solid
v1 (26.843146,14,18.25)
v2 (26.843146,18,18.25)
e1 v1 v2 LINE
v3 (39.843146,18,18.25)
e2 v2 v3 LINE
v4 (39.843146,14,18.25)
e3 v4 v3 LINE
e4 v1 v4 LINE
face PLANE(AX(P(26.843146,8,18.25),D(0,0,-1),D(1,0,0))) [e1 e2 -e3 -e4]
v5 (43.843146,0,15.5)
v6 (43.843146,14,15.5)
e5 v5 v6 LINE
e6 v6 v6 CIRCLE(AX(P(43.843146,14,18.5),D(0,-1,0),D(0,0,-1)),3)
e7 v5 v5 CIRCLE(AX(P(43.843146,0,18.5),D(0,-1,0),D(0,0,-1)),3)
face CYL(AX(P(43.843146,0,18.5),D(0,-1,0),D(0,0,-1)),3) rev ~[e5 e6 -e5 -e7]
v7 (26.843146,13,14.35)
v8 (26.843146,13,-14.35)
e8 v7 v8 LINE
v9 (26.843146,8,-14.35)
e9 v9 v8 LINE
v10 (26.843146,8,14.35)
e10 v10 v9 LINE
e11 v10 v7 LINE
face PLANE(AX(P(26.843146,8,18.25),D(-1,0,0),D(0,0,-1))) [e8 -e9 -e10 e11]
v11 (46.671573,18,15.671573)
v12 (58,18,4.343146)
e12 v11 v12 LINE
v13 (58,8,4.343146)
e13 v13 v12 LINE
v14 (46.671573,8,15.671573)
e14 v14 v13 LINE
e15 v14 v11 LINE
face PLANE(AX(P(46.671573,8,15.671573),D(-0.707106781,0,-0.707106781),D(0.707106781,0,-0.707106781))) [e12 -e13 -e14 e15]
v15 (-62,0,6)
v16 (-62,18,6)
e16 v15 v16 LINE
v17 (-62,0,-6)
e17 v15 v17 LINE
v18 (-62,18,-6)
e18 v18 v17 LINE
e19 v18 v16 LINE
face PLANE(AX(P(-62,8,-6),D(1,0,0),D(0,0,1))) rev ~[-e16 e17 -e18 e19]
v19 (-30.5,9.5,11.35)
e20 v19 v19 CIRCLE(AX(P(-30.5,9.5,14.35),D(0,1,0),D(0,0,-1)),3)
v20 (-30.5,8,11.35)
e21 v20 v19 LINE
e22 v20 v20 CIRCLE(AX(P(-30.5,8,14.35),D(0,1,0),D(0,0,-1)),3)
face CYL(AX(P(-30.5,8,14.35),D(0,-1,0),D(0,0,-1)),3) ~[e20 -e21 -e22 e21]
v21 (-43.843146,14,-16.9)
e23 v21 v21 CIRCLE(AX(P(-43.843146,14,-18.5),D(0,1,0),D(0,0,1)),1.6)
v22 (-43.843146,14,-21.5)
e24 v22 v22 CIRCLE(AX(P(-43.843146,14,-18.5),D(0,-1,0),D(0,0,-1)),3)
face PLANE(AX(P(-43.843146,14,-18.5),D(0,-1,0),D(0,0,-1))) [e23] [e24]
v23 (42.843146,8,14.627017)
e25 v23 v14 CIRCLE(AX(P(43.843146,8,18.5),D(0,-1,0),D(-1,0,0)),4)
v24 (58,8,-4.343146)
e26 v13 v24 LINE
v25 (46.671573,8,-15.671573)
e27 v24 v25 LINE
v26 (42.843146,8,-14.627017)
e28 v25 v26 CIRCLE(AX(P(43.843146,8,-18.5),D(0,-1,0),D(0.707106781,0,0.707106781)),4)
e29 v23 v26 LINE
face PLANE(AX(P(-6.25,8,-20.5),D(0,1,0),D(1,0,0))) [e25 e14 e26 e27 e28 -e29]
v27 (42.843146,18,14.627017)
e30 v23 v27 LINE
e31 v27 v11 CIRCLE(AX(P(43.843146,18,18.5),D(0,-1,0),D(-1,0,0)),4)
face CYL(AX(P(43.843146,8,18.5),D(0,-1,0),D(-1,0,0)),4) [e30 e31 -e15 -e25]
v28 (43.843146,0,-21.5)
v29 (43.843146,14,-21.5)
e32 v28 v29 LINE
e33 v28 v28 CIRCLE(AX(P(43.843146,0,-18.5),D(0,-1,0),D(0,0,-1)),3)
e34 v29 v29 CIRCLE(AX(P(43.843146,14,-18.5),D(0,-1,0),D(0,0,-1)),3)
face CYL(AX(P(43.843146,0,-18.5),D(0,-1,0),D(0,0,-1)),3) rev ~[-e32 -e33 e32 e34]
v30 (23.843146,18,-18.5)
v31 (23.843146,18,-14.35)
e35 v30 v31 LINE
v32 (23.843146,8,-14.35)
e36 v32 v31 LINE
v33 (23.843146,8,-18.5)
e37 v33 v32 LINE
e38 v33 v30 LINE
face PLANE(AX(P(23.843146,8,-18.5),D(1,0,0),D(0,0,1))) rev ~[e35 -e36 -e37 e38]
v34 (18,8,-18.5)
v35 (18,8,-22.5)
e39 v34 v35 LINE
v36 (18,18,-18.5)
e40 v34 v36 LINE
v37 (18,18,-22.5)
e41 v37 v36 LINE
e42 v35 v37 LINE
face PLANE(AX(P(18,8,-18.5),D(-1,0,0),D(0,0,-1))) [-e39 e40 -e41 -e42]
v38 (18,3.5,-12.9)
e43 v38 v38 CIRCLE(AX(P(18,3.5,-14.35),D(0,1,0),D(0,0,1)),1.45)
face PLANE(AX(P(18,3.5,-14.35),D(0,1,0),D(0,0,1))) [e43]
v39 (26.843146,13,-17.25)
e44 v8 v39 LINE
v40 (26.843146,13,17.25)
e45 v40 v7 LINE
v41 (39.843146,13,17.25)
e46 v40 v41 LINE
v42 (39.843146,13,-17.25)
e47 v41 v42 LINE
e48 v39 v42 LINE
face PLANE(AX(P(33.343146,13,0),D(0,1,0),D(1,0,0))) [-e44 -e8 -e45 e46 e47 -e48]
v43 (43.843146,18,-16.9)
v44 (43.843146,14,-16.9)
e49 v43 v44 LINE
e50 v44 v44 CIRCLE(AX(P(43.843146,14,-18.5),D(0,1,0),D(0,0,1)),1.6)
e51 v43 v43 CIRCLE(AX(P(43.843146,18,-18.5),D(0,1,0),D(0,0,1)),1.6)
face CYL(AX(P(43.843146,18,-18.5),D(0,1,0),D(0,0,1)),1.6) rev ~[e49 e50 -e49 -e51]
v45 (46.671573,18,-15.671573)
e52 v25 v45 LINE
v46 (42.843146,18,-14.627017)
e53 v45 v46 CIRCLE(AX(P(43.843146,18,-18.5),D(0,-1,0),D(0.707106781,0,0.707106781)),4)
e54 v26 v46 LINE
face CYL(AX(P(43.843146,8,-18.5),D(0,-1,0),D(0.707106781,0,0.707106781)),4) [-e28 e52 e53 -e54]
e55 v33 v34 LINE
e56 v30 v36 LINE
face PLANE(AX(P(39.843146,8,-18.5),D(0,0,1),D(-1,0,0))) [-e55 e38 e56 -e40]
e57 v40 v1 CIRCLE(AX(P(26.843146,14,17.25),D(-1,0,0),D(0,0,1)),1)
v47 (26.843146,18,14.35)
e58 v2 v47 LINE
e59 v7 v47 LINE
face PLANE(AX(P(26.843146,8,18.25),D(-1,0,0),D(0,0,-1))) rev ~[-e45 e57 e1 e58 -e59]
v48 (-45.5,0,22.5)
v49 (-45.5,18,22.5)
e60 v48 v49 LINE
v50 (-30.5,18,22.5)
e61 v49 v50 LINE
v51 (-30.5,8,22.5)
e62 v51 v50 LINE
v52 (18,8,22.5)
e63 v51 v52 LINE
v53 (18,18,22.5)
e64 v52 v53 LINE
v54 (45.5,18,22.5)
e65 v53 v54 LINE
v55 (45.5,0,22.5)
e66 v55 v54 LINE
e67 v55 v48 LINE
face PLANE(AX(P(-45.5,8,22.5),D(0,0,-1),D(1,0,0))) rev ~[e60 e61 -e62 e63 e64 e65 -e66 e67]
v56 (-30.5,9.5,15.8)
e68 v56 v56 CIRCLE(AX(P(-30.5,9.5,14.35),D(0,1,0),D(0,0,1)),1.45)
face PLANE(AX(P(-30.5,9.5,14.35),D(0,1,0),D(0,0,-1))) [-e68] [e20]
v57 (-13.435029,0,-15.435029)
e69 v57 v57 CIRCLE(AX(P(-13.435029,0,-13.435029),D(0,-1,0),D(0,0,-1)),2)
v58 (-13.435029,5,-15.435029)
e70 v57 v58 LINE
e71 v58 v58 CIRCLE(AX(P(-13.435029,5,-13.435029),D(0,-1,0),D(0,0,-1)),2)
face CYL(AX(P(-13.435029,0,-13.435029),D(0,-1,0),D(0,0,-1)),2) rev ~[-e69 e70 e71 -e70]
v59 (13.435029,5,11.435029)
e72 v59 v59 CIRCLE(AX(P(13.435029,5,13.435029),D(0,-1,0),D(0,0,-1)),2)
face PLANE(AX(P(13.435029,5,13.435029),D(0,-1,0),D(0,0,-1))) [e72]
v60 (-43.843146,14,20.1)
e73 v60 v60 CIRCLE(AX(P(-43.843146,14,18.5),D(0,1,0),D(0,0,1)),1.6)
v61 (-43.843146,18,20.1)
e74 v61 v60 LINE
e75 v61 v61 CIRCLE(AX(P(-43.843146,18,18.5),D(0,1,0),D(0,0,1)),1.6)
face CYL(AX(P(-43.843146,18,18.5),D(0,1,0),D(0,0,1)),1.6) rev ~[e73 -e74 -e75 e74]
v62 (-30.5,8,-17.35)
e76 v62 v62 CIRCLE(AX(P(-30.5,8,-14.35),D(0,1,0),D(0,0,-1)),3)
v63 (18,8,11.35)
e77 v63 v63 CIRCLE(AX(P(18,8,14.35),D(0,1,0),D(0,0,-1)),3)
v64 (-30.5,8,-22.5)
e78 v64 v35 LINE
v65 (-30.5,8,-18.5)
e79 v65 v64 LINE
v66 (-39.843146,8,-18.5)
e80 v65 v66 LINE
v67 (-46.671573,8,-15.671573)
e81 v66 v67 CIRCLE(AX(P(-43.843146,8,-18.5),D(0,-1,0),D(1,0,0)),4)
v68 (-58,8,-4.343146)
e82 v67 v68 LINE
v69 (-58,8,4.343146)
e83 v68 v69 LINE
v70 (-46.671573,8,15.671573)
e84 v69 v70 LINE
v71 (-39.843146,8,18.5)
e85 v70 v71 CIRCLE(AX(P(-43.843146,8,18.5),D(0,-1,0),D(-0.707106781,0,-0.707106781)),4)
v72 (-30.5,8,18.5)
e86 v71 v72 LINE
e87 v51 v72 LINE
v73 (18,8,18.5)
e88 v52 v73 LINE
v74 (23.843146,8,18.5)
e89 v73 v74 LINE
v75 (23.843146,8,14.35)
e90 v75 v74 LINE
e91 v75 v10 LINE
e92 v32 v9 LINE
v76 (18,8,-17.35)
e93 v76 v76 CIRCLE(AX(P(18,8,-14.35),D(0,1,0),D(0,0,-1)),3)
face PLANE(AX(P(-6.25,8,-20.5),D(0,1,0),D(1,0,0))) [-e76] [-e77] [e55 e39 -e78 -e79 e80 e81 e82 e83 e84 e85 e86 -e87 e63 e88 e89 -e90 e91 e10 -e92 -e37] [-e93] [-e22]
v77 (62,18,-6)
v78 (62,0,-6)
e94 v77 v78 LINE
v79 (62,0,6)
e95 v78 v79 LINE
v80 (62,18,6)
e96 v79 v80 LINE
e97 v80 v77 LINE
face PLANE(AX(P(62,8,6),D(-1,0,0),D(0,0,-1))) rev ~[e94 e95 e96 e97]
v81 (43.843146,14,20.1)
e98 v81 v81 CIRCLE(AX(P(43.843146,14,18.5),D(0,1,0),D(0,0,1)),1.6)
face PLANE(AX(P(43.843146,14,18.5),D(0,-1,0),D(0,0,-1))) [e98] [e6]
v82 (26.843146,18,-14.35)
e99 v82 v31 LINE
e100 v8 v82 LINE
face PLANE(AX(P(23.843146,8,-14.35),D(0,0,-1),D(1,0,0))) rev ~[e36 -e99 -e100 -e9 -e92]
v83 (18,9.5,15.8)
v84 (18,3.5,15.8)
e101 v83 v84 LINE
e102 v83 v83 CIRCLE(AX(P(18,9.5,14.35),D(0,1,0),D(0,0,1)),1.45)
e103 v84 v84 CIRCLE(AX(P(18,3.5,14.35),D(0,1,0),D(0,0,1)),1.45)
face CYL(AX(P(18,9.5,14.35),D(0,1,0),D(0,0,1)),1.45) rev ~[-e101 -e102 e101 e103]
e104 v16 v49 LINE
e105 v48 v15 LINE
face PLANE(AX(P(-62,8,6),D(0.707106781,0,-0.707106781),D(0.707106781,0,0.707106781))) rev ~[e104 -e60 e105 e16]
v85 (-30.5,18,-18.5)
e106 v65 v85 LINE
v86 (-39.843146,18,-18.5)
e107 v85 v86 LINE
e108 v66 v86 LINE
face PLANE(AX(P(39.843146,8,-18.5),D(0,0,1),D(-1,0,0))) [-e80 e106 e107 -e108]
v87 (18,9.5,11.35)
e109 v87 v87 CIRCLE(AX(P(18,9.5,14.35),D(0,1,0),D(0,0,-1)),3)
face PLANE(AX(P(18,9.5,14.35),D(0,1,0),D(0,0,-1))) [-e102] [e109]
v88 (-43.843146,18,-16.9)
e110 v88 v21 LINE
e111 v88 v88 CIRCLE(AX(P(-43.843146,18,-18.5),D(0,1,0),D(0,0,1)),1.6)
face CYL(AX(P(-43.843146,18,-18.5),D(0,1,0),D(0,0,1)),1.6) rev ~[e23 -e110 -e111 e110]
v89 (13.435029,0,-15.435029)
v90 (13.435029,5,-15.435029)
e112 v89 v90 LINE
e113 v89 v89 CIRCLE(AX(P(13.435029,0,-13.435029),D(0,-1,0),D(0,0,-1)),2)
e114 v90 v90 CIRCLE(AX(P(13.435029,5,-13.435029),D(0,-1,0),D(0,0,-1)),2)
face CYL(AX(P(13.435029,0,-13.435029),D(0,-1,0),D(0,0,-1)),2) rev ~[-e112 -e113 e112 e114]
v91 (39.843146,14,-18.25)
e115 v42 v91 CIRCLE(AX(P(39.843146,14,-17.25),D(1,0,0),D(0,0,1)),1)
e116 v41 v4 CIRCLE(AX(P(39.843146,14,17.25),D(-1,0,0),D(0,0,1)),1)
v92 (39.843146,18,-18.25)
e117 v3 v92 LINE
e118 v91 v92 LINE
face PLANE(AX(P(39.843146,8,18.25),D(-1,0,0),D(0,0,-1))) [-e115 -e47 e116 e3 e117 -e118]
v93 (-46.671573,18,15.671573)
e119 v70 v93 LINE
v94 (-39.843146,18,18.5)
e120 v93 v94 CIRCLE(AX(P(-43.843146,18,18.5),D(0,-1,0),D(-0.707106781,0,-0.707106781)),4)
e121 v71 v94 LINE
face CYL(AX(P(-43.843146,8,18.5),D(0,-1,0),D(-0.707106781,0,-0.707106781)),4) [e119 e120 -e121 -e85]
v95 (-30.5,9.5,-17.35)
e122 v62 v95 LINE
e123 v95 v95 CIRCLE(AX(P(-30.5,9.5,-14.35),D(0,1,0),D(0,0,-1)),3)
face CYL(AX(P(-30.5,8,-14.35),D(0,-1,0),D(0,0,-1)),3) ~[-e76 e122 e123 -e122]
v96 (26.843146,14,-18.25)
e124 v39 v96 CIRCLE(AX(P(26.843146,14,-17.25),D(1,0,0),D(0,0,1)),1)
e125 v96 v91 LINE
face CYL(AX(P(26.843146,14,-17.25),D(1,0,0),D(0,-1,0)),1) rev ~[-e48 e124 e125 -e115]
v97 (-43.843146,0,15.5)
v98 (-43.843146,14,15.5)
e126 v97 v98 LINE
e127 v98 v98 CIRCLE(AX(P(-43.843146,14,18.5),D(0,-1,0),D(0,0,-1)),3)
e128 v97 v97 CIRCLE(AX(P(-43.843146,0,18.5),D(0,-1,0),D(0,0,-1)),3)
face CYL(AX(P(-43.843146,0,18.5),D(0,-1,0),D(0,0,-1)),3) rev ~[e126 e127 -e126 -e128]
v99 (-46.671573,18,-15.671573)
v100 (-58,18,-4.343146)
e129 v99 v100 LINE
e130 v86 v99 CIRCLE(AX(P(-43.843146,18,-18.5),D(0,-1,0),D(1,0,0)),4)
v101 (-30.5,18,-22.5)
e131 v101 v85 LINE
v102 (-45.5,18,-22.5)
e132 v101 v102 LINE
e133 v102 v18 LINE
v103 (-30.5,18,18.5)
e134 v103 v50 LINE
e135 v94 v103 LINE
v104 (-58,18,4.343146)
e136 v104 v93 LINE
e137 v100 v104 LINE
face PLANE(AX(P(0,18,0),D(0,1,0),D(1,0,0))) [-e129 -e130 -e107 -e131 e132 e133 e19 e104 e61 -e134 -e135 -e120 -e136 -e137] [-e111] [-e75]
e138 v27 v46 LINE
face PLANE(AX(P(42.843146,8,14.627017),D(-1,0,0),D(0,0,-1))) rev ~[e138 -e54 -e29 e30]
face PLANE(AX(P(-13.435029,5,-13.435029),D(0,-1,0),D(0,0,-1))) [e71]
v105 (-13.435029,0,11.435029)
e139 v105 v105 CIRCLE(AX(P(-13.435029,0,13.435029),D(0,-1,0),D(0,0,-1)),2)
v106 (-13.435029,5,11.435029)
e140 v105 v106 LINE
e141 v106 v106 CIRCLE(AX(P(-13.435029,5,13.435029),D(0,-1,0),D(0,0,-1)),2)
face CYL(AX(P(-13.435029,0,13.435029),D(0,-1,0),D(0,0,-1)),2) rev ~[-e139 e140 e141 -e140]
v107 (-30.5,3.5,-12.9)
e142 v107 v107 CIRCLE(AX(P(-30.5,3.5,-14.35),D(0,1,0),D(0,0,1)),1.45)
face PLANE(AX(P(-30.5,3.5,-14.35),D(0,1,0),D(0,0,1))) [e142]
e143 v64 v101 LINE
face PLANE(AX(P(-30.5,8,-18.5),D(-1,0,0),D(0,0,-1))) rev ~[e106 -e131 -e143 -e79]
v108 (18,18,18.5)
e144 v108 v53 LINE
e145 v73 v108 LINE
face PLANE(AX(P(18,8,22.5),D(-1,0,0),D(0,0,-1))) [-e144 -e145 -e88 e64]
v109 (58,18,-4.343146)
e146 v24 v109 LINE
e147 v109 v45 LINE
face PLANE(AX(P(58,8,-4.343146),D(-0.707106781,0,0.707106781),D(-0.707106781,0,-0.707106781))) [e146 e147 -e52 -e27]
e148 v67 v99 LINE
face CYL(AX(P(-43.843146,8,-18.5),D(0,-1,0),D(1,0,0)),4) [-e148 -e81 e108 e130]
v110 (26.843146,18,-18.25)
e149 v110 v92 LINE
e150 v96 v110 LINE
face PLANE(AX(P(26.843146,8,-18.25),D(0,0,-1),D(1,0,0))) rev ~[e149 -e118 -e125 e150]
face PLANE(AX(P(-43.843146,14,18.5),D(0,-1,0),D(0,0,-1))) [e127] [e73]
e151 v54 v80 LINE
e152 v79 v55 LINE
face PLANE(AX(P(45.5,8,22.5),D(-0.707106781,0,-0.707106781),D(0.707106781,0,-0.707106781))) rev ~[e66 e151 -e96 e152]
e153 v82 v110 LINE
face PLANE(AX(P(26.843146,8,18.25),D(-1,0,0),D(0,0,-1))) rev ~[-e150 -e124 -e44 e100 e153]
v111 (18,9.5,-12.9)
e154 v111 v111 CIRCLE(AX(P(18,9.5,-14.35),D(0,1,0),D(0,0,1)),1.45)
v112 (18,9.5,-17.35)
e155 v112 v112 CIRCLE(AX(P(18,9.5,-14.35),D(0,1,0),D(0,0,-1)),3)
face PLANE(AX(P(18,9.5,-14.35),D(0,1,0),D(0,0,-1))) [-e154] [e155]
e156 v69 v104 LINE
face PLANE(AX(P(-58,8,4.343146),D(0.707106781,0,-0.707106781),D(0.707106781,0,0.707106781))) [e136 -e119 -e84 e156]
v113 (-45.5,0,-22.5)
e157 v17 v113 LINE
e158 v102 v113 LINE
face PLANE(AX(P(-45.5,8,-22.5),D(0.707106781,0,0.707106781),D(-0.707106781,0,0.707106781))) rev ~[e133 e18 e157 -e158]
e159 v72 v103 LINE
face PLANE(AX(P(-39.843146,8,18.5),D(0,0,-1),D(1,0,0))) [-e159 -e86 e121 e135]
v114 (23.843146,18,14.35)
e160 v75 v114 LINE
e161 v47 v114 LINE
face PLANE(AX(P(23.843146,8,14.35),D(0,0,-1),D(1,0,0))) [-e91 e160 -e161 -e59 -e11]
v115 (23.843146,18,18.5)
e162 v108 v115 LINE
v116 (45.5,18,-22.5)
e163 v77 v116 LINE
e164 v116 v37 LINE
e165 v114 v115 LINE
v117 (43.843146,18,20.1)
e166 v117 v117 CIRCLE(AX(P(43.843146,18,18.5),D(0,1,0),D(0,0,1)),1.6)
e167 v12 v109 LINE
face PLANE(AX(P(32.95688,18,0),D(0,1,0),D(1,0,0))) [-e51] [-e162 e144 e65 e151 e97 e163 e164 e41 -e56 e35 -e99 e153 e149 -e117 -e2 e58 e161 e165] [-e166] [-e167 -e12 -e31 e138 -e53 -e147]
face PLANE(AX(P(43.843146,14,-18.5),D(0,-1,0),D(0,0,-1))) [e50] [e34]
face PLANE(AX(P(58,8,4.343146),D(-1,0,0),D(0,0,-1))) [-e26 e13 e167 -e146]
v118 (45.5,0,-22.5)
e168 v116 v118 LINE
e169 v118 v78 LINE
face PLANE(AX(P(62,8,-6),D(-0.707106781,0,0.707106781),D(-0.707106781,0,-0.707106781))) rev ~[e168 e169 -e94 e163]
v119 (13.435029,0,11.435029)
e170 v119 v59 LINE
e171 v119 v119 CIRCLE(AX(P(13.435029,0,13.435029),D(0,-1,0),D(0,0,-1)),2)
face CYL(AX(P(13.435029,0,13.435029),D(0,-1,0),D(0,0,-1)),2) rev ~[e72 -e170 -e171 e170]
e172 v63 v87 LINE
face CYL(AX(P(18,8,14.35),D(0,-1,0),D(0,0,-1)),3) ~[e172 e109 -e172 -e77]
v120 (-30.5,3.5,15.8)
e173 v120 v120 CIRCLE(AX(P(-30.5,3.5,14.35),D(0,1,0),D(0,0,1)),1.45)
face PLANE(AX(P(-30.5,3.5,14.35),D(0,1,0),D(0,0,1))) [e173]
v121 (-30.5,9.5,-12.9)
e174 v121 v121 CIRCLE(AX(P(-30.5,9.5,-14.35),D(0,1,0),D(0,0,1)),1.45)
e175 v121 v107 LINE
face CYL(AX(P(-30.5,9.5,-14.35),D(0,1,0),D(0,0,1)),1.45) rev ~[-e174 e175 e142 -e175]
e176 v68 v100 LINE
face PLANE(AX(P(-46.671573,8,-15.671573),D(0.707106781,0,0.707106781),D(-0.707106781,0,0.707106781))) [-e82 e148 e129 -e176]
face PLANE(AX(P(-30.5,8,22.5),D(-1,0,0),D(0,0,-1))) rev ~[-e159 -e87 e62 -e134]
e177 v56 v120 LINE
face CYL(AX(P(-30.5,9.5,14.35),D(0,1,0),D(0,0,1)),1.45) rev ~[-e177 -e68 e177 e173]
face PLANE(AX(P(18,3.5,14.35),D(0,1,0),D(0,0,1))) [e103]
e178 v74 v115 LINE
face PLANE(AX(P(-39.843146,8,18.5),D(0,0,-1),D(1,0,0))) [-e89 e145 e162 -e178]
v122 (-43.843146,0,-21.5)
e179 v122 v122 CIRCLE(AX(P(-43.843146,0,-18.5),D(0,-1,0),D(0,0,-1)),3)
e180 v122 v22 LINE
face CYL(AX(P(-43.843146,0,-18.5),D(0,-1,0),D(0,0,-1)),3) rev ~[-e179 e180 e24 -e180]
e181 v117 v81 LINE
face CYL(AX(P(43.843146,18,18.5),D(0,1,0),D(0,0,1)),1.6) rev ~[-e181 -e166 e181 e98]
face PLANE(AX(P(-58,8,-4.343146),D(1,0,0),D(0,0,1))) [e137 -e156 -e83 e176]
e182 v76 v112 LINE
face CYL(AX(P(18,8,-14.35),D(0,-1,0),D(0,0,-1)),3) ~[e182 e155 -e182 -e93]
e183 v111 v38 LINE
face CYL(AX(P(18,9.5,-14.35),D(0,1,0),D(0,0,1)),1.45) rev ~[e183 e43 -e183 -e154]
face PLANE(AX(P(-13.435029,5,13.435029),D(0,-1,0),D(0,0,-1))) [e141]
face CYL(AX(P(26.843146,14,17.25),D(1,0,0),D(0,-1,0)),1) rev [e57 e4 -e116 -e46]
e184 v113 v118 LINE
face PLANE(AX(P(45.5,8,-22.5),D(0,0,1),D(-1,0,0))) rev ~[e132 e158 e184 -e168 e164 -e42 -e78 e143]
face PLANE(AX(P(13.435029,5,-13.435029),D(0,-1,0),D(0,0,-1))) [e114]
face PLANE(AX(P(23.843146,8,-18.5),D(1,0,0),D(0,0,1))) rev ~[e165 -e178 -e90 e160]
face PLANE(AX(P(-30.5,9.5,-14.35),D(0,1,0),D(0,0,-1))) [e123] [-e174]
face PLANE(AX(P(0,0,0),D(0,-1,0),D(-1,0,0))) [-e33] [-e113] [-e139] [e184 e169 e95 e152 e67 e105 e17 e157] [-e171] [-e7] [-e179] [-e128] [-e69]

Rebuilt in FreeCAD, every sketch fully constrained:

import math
import FreeCAD as App
import Part
import Sketcher
from FreeCAD import Vector
Q = App.Units.Quantity


def edges_at(feature, points):
    """Names of the edges that pass closest to the given points."""
    edges = feature.Shape.Edges
    near = lambda p: min(range(len(edges)), key=lambda i: edges[i].distToShape(Part.Vertex(*p))[0])
    return sorted({f"Edge{near(p) + 1}" for p in points})

doc = App.newDocument("Part")
body = doc.addObject("PartDesign::Body", "Body")

# Sketch on XZ plane
sketch1 = body.newObject("Sketcher::SketchObject", "Sketch")
sketch1.AttachmentSupport = (doc.getObject("XZ_Plane"), [""])
sketch1.MapMode = "FlatFace"
sketch1.addGeometry([
    Part.LineSegment(Vector(-46, -22, 0), Vector(-62, -6, 0)),  # 0
    Part.LineSegment(Vector(-62, -6, 0), Vector(-62, 6, 0)),  # 1
    Part.LineSegment(Vector(-62, 6, 0), Vector(-46, 22, 0)),  # 2
    Part.LineSegment(Vector(-46, 22, 0), Vector(46, 22, 0)),  # 3
    Part.LineSegment(Vector(46, 22, 0), Vector(62, 6, 0)),  # 4
    Part.LineSegment(Vector(62, 6, 0), Vector(62, -6, 0)),  # 5
    Part.LineSegment(Vector(62, -6, 0), Vector(46, -22, 0)),  # 6
    Part.LineSegment(Vector(46, -22, 0), Vector(-46, -22, 0)),  # 7
], False)
sketch1.addConstraint([
    Sketcher.Constraint("Coincident", 0, 2, 1, 1),
    Sketcher.Constraint("Coincident", 1, 2, 2, 1),
    Sketcher.Constraint("Coincident", 2, 2, 3, 1),
    Sketcher.Constraint("Coincident", 3, 2, 4, 1),
    Sketcher.Constraint("Coincident", 4, 2, 5, 1),
    Sketcher.Constraint("Coincident", 5, 2, 6, 1),
    Sketcher.Constraint("Coincident", 6, 2, 7, 1),
    Sketcher.Constraint("Coincident", 7, 2, 0, 1),
    Sketcher.Constraint("Vertical", 1),
    Sketcher.Constraint("Horizontal", 3),
    Sketcher.Constraint("Vertical", 5),
    Sketcher.Constraint("Horizontal", 7),
    Sketcher.Constraint("Symmetric", 0, 2, 4, 2, -1, 1),
    Sketcher.Constraint("Symmetric", 2, 2, 6, 2, -1, 1),
    Sketcher.Constraint("Perpendicular", 0, 2),
    Sketcher.Constraint("Perpendicular", 2, 4),
    Sketcher.Constraint("Perpendicular", 4, 6),
    Sketcher.Constraint("Horizontal", 1, 2, 4, 2),
    Sketcher.Constraint("Vertical", 3, 2, 6, 2),
    Sketcher.Constraint("DistanceX", 3, 1, 3, 2, Q("91 mm")),
    Sketcher.Constraint("DistanceY", 1, 1, 1, 2, Q("12 mm")),
    Sketcher.Constraint("DistanceX", 0, 2, -1, 1, Q("62 mm")),
])
pad1 = body.newObject("PartDesign::Pad", "Pad")
pad1.Profile = sketch1
pad1.Length = 8
pad1.Reversed = True

# Sketch on XZ plane
sketch2 = body.newObject("Sketcher::SketchObject", "Sketch001")
sketch2.AttachmentSupport = (doc.getObject("XZ_Plane"), [""])
sketch2.MapMode = "FlatFace"
sketch2.AttachmentOffset = App.Placement(Vector(0, 0, -8), App.Rotation())
sketch2.addGeometry([
    Part.LineSegment(Vector(-62, -6, 0), Vector(-62, 6, 0)),  # 0
    Part.LineSegment(Vector(-62, 6, 0), Vector(-45.5, 22.5, 0)),  # 1
    Part.LineSegment(Vector(-45.5, 22.5, 0), Vector(45.5, 22.5, 0)),  # 2
    Part.LineSegment(Vector(45.5, 22.5, 0), Vector(62, 6, 0)),  # 3
    Part.LineSegment(Vector(62, 6, 0), Vector(62, -6, 0)),  # 4
    Part.LineSegment(Vector(62, -6, 0), Vector(45.5, -22.5, 0)),  # 5
    Part.LineSegment(Vector(45.5, -22.5, 0), Vector(-45.5, -22.5, 0)),  # 6
    Part.LineSegment(Vector(-45.5, -22.5, 0), Vector(-62, -6, 0)),  # 7
    Part.LineSegment(Vector(-58, 4.3, 0), Vector(-58, -4.3, 0)),  # 8
    Part.LineSegment(Vector(-58, -4.3, 0), Vector(-46.7, -15.7, 0)),  # 9
    Part.ArcOfCircle(Part.Circle(Vector(-43.8, -18.5, 0), Vector(0, 0, 1), 4), math.radians(0), math.radians(135)),  # 10
    Part.LineSegment(Vector(-39.8, -18.5, 0), Vector(39.8, -18.5, 0)),  # 11
    Part.ArcOfCircle(Part.Circle(Vector(43.8, -18.5, 0), Vector(0, 0, 1), 4), math.radians(45), math.radians(180)),  # 12
    Part.LineSegment(Vector(46.7, -15.7, 0), Vector(58, -4.3, 0)),  # 13
    Part.LineSegment(Vector(58, -4.3, 0), Vector(58, 4.3, 0)),  # 14
    Part.LineSegment(Vector(58, 4.3, 0), Vector(46.7, 15.7, 0)),  # 15
    Part.ArcOfCircle(Part.Circle(Vector(43.8, 18.5, 0), Vector(0, 0, 1), 4), math.radians(180), math.radians(315)),  # 16
    Part.LineSegment(Vector(39.8, 18.5, 0), Vector(-39.8, 18.5, 0)),  # 17
    Part.ArcOfCircle(Part.Circle(Vector(-43.8, 18.5, 0), Vector(0, 0, 1), 4), math.radians(-135), math.radians(0)),  # 18
    Part.LineSegment(Vector(-46.7, 15.7, 0), Vector(-58, 4.3, 0)),  # 19
], False)
sketch2.addConstraint([
    Sketcher.Constraint("Coincident", 0, 2, 1, 1),
    Sketcher.Constraint("Coincident", 1, 2, 2, 1),
    Sketcher.Constraint("Coincident", 2, 2, 3, 1),
    Sketcher.Constraint("Coincident", 3, 2, 4, 1),
    Sketcher.Constraint("Coincident", 4, 2, 5, 1),
    Sketcher.Constraint("Coincident", 5, 2, 6, 1),
    Sketcher.Constraint("Coincident", 6, 2, 7, 1),
    Sketcher.Constraint("Coincident", 7, 2, 0, 1),
    Sketcher.Constraint("Coincident", 8, 2, 9, 1),
    Sketcher.Constraint("Coincident", 9, 2, 10, 2),
    Sketcher.Constraint("Coincident", 10, 1, 11, 1),
    Sketcher.Constraint("Coincident", 11, 2, 12, 2),
    Sketcher.Constraint("Coincident", 12, 1, 13, 1),
    Sketcher.Constraint("Coincident", 13, 2, 14, 1),
    Sketcher.Constraint("Coincident", 14, 2, 15, 1),
    Sketcher.Constraint("Coincident", 15, 2, 16, 2),
    Sketcher.Constraint("Coincident", 16, 1, 17, 1),
    Sketcher.Constraint("Coincident", 17, 2, 18, 2),
    Sketcher.Constraint("Coincident", 18, 1, 19, 1),
    Sketcher.Constraint("Coincident", 19, 2, 8, 1),
    Sketcher.Constraint("Vertical", 0),
    Sketcher.Constraint("Horizontal", 2),
    Sketcher.Constraint("Vertical", 4),
    Sketcher.Constraint("Horizontal", 6),
    Sketcher.Constraint("Vertical", 8),
    Sketcher.Constraint("Horizontal", 11),
    Sketcher.Constraint("Vertical", 14),
    Sketcher.Constraint("Horizontal", 17),
    Sketcher.Constraint("Equal", 10, 12),
    Sketcher.Constraint("Equal", 12, 16),
    Sketcher.Constraint("Equal", 16, 18),
    Sketcher.Constraint("Symmetric", 10, 3, 16, 3, -1, 1),
    Sketcher.Constraint("Symmetric", 12, 3, 18, 3, -1, 1),
    Sketcher.Constraint("Symmetric", 0, 2, 4, 2, -1, 1),
    Sketcher.Constraint("Symmetric", 1, 2, 5, 2, -1, 1),
    Sketcher.Constraint("Symmetric", 8, 2, 14, 2, -1, 1),
    Sketcher.Constraint("Symmetric", 10, 3, 12, 3, -2),
    Sketcher.Constraint("Perpendicular", 1, 3),
    Sketcher.Constraint("Perpendicular", 5, 7),
    Sketcher.Constraint("Parallel", 7, 9),
    Sketcher.Constraint("Perpendicular", 9, 13),
    Sketcher.Constraint("Perpendicular", 13, 15),
    Sketcher.Constraint("Perpendicular", 15, 19),
    Sketcher.Constraint("Horizontal", 0, 2, 3, 2),
    Sketcher.Constraint("Horizontal", 4, 2, 7, 2),
    Sketcher.Constraint("Horizontal", 12, 3, 10, 1),
    Sketcher.Constraint("Horizontal", 9, 2, 12, 1),
    Sketcher.Constraint("Horizontal", 8, 2, 13, 2),
    Sketcher.Constraint("Horizontal", 18, 3, 16, 1),
    Sketcher.Constraint("Horizontal", 15, 2, 18, 1),
    Sketcher.Constraint("Radius", 10, Q("4 mm")),
    Sketcher.Constraint("DistanceX", 2, 1, 2, 2, Q("91 mm")),
    Sketcher.Constraint("DistanceY", 0, 1, 0, 2, Q("12 mm")),
    Sketcher.Constraint("DistanceX", 0, 2, -1, 1, Q("62 mm")),
    Sketcher.Constraint("DistanceX", 8, 2, -1, 1, Q("58 mm")),
    Sketcher.Constraint("DistanceY", 12, 3, 16, 3, Q("37 mm")),
    Sketcher.Constraint("DistanceX", 11, 1, 11, 2, Q("79.686292 mm")),
    Sketcher.Constraint("DistanceY", 8, 2, 8, 1, Q("8.686292 mm")),
])
pad2 = body.newObject("PartDesign::Pad", "Pad001")
pad2.Profile = sketch2
pad2.Length = 10
pad2.Reversed = True

# Sketch on XZ plane
sketch3 = body.newObject("Sketcher::SketchObject", "Sketch002")
sketch3.AttachmentSupport = (doc.getObject("XZ_Plane"), [""])
sketch3.MapMode = "FlatFace"
sketch3.AttachmentOffset = App.Placement(Vector(0, 0, -8), App.Rotation())
sketch3.addGeometry([
    Part.Circle(Vector(18, -14.3, 0), Vector(0, 0, 1), 3),
    Part.Circle(Vector(-30.5, -14.3, 0), Vector(0, 0, 1), 3),
    Part.Circle(Vector(-30.5, 14.3, 0), Vector(0, 0, 1), 3),
    Part.Circle(Vector(18, 14.3, 0), Vector(0, 0, 1), 3),
], False)
sketch3.addConstraint([
    Sketcher.Constraint("Equal", 0, 1),
    Sketcher.Constraint("Equal", 1, 2),
    Sketcher.Constraint("Equal", 2, 3),
    Sketcher.Constraint("Symmetric", 1, 3, 2, 3, -1),
    Sketcher.Constraint("Symmetric", 0, 3, 3, 3, -1),
    Sketcher.Constraint("Horizontal", 0, 3, 1, 3),
    Sketcher.Constraint("Diameter", 0, Q("6 mm")),
    Sketcher.Constraint("DistanceX", -1, 1, 0, 3, Q("18 mm")),
    Sketcher.Constraint("DistanceX", 1, 3, -1, 1, Q("30.5 mm")),
    Sketcher.Constraint("DistanceY", 1, 3, 2, 3, Q("28.7 mm")),
])
pad3 = body.newObject("PartDesign::Pad", "Pad002")
pad3.Profile = sketch3
pad3.Length = 1.5
pad3.Reversed = True

# Sketch on XZ plane
sketch4 = body.newObject("Sketcher::SketchObject", "Sketch003")
sketch4.AttachmentSupport = (doc.getObject("XZ_Plane"), [""])
sketch4.MapMode = "FlatFace"
sketch4.AttachmentOffset = App.Placement(Vector(0, 0, -8), App.Rotation())
sketch4.addGeometry([
    Part.LineSegment(Vector(-30.5, -22.5, 0), Vector(-30.5, -18.5, 0)),  # 0
    Part.LineSegment(Vector(-30.5, -18.5, 0), Vector(18, -18.5, 0)),  # 1
    Part.LineSegment(Vector(18, -18.5, 0), Vector(18, -22.5, 0)),  # 2
    Part.LineSegment(Vector(18, -22.5, 0), Vector(-30.5, -22.5, 0)),  # 3
    Part.LineSegment(Vector(-30.5, 18.5, 0), Vector(-30.5, 22.5, 0)),  # 4
    Part.LineSegment(Vector(-30.5, 22.5, 0), Vector(18, 22.5, 0)),  # 5
    Part.LineSegment(Vector(18, 22.5, 0), Vector(18, 18.5, 0)),  # 6
    Part.LineSegment(Vector(18, 18.5, 0), Vector(-30.5, 18.5, 0)),  # 7
], False)
sketch4.addConstraint([
    Sketcher.Constraint("Coincident", 0, 2, 1, 1),
    Sketcher.Constraint("Coincident", 1, 2, 2, 1),
    Sketcher.Constraint("Coincident", 2, 2, 3, 1),
    Sketcher.Constraint("Coincident", 3, 2, 0, 1),
    Sketcher.Constraint("Coincident", 4, 2, 5, 1),
    Sketcher.Constraint("Coincident", 5, 2, 6, 1),
    Sketcher.Constraint("Coincident", 6, 2, 7, 1),
    Sketcher.Constraint("Coincident", 7, 2, 4, 1),
    Sketcher.Constraint("Vertical", 0),
    Sketcher.Constraint("Horizontal", 1),
    Sketcher.Constraint("Vertical", 2),
    Sketcher.Constraint("Horizontal", 3),
    Sketcher.Constraint("Vertical", 4),
    Sketcher.Constraint("Horizontal", 5),
    Sketcher.Constraint("Vertical", 6),
    Sketcher.Constraint("Horizontal", 7),
    Sketcher.Constraint("Symmetric", 3, 2, 4, 2, -1),
    Sketcher.Constraint("Symmetric", 1, 2, 6, 2, -1),
    Sketcher.Constraint("DistanceY", 0, 1, 0, 2, Q("4 mm")),
    Sketcher.Constraint("DistanceX", 1, 1, 1, 2, Q("48.5 mm")),
    Sketcher.Constraint("DistanceX", -1, 1, 1, 2, Q("18 mm")),
    Sketcher.Constraint("DistanceY", 0, 2, 4, 2, Q("41 mm")),
])
pocket1 = body.newObject("PartDesign::Pocket", "Pocket")
pocket1.Profile = sketch4
pocket1.Type = "ThroughAll"

# Sketch on XZ plane
sketch5 = body.newObject("Sketcher::SketchObject", "Sketch004")
sketch5.AttachmentSupport = (doc.getObject("XZ_Plane"), [""])
sketch5.MapMode = "FlatFace"
sketch5.AttachmentOffset = App.Placement(Vector(0, 0, -8), App.Rotation())
sketch5.addGeometry([
    Part.LineSegment(Vector(23.8, -18.5, 0), Vector(23.8, 18.5, 0)),  # 0
    Part.LineSegment(Vector(23.8, 18.5, 0), Vector(39.8, 18.5, 0)),  # 1
    Part.ArcOfCircle(Part.Circle(Vector(43.8, 18.5, 0), Vector(0, 0, 1), 4), math.radians(180), math.radians(256)),  # 2
    Part.LineSegment(Vector(42.8, 14.6, 0), Vector(42.8, -14.6, 0)),  # 3
    Part.ArcOfCircle(Part.Circle(Vector(43.8, -18.5, 0), Vector(0, 0, 1), 4), math.radians(104), math.radians(180)),  # 4
    Part.LineSegment(Vector(39.8, -18.5, 0), Vector(23.8, -18.5, 0)),  # 5
    Part.LineSegment(Vector(39.8, 18.2, 0), Vector(26.8, 18.2, 0)),  # 6
    Part.LineSegment(Vector(26.8, 18.2, 0), Vector(26.8, -18.2, 0)),  # 7
    Part.LineSegment(Vector(26.8, -18.2, 0), Vector(39.8, -18.2, 0)),  # 8
    Part.LineSegment(Vector(39.8, -18.2, 0), Vector(39.8, 18.2, 0)),  # 9
], False)
sketch5.addConstraint([
    Sketcher.Constraint("Coincident", 0, 2, 1, 1),
    Sketcher.Constraint("Coincident", 1, 2, 2, 1),
    Sketcher.Constraint("Coincident", 2, 2, 3, 1),
    Sketcher.Constraint("Coincident", 3, 2, 4, 1),
    Sketcher.Constraint("Coincident", 4, 2, 5, 1),
    Sketcher.Constraint("Coincident", 5, 2, 0, 1),
    Sketcher.Constraint("Coincident", 6, 2, 7, 1),
    Sketcher.Constraint("Coincident", 7, 2, 8, 1),
    Sketcher.Constraint("Coincident", 8, 2, 9, 1),
    Sketcher.Constraint("Coincident", 9, 2, 6, 1),
    Sketcher.Constraint("Vertical", 0),
    Sketcher.Constraint("Horizontal", 1),
    Sketcher.Constraint("Vertical", 3),
    Sketcher.Constraint("Horizontal", 5),
    Sketcher.Constraint("Horizontal", 6),
    Sketcher.Constraint("Vertical", 7),
    Sketcher.Constraint("Horizontal", 8),
    Sketcher.Constraint("Vertical", 9),
    Sketcher.Constraint("Equal", 2, 4),
    Sketcher.Constraint("Symmetric", 2, 3, 4, 3, -1),
    Sketcher.Constraint("Horizontal", 2, 3, 0, 2),
    Sketcher.Constraint("Vertical", 4, 2, 8, 2),
    Sketcher.Constraint("Radius", 2, Q("4 mm")),
    Sketcher.Constraint("DistanceX", 1, 1, 1, 2, Q("16 mm")),
    Sketcher.Constraint("DistanceX", 6, 2, 6, 1, Q("13 mm")),
    Sketcher.Constraint("DistanceY", 0, 1, 0, 2, Q("37 mm")),
    Sketcher.Constraint("DistanceY", 7, 2, 7, 1, Q("36.5 mm")),
    Sketcher.Constraint("DistanceY", 4, 3, 2, 3, Q("37 mm")),
    Sketcher.Constraint("DistanceX", 2, 2, 2, 3, Q("1 mm")),
    Sketcher.Constraint("DistanceY", -1, 1, 6, 2, Q("18.25 mm")),
    Sketcher.Constraint("DistanceX", -1, 1, 2, 3, Q("43.843146 mm")),
])
pad4 = body.newObject("PartDesign::Pad", "Pad003")
pad4.Profile = sketch5
pad4.Length = 10
pad4.Reversed = True

# Sketch on XZ plane
sketch6 = body.newObject("Sketcher::SketchObject", "Sketch005")
sketch6.AttachmentSupport = (doc.getObject("XZ_Plane"), [""])
sketch6.MapMode = "FlatFace"
sketch6.AttachmentOffset = App.Placement(Vector(0, 0, -8), App.Rotation())
sketch6.addGeometry([
    Part.LineSegment(Vector(23.8, -14.3, 0), Vector(23.8, 14.3, 0)),
    Part.LineSegment(Vector(23.8, 14.3, 0), Vector(26.8, 14.3, 0)),
    Part.LineSegment(Vector(26.8, 14.3, 0), Vector(26.8, -14.3, 0)),
    Part.LineSegment(Vector(26.8, -14.3, 0), Vector(23.8, -14.3, 0)),
], False)
sketch6.addConstraint([
    Sketcher.Constraint("Coincident", 0, 2, 1, 1),
    Sketcher.Constraint("Coincident", 1, 2, 2, 1),
    Sketcher.Constraint("Coincident", 2, 2, 3, 1),
    Sketcher.Constraint("Coincident", 3, 2, 0, 1),
    Sketcher.Constraint("Vertical", 0),
    Sketcher.Constraint("Horizontal", 1),
    Sketcher.Constraint("Vertical", 2),
    Sketcher.Constraint("Horizontal", 3),
    Sketcher.Constraint("DistanceX", 1, 1, 1, 2, Q("3 mm")),
    Sketcher.Constraint("DistanceY", 0, 1, 0, 2, Q("28.7 mm")),
    Sketcher.Constraint("DistanceY", -1, 1, 0, 2, Q("14.35 mm")),
    Sketcher.Constraint("DistanceX", -1, 1, 0, 2, Q("23.843146 mm")),
])
pocket2 = body.newObject("PartDesign::Pocket", "Pocket001")
pocket2.Profile = sketch6
pocket2.Type = "ThroughAll"

# Sketch on XZ plane
sketch7 = body.newObject("Sketcher::SketchObject", "Sketch006")
sketch7.AttachmentSupport = (doc.getObject("XZ_Plane"), [""])
sketch7.MapMode = "FlatFace"
sketch7.AttachmentOffset = App.Placement(Vector(0, 0, -18), App.Rotation())
sketch7.addGeometry([
    Part.Circle(Vector(-43.8, -18.5, 0), Vector(0, 0, 1), 1.6),
    Part.Circle(Vector(43.8, -18.5, 0), Vector(0, 0, 1), 1.6),
    Part.Circle(Vector(43.8, 18.5, 0), Vector(0, 0, 1), 1.6),
    Part.Circle(Vector(-43.8, 18.5, 0), Vector(0, 0, 1), 1.6),
], False)
sketch7.addConstraint([
    Sketcher.Constraint("Equal", 0, 1),
    Sketcher.Constraint("Equal", 1, 2),
    Sketcher.Constraint("Equal", 2, 3),
    Sketcher.Constraint("Symmetric", 0, 3, 2, 3, -1, 1),
    Sketcher.Constraint("Symmetric", 1, 3, 3, 3, -1, 1),
    Sketcher.Constraint("Symmetric", 0, 3, 1, 3, -2),
    Sketcher.Constraint("Diameter", 0, Q("3.2 mm")),
    Sketcher.Constraint("DistanceY", 1, 3, 2, 3, Q("37 mm")),
    Sketcher.Constraint("DistanceX", 0, 3, 1, 3, Q("87.686292 mm")),
])
pocket3 = body.newObject("PartDesign::Pocket", "Pocket002")
pocket3.Profile = sketch7
pocket3.Type = "ThroughAll"
pocket3.Reversed = True

# Sketch on XZ plane
sketch8 = body.newObject("Sketcher::SketchObject", "Sketch007")
sketch8.AttachmentSupport = (doc.getObject("XZ_Plane"), [""])
sketch8.MapMode = "FlatFace"
sketch8.addGeometry([
    Part.Circle(Vector(-43.8, 18.5, 0), Vector(0, 0, 1), 3),
    Part.Circle(Vector(43.8, 18.5, 0), Vector(0, 0, 1), 3),
    Part.Circle(Vector(43.8, -18.5, 0), Vector(0, 0, 1), 3),
    Part.Circle(Vector(-43.8, -18.5, 0), Vector(0, 0, 1), 3),
], False)
sketch8.addConstraint([
    Sketcher.Constraint("Equal", 0, 1),
    Sketcher.Constraint("Equal", 1, 2),
    Sketcher.Constraint("Equal", 2, 3),
    Sketcher.Constraint("Symmetric", 0, 3, 2, 3, -1, 1),
    Sketcher.Constraint("Symmetric", 1, 3, 3, 3, -1, 1),
    Sketcher.Constraint("Symmetric", 0, 3, 1, 3, -2),
    Sketcher.Constraint("Diameter", 0, Q("6 mm")),
    Sketcher.Constraint("DistanceY", 2, 3, 1, 3, Q("37 mm")),
    Sketcher.Constraint("DistanceX", 0, 3, 1, 3, Q("87.686292 mm")),
])
pocket4 = body.newObject("PartDesign::Pocket", "Pocket003")
pocket4.Profile = sketch8
pocket4.Length = 14

# Sketch on XZ plane
sketch9 = body.newObject("Sketcher::SketchObject", "Sketch008")
sketch9.AttachmentSupport = (doc.getObject("XZ_Plane"), [""])
sketch9.MapMode = "FlatFace"
sketch9.AttachmentOffset = App.Placement(Vector(0, 0, -9.5), App.Rotation())
sketch9.addGeometry([
    Part.Circle(Vector(-30.5, -14.3, 0), Vector(0, 0, 1), 1.4),
    Part.Circle(Vector(18, -14.3, 0), Vector(0, 0, 1), 1.4),
    Part.Circle(Vector(18, 14.3, 0), Vector(0, 0, 1), 1.4),
    Part.Circle(Vector(-30.5, 14.3, 0), Vector(0, 0, 1), 1.4),
], False)
sketch9.addConstraint([
    Sketcher.Constraint("Equal", 0, 1),
    Sketcher.Constraint("Equal", 1, 2),
    Sketcher.Constraint("Equal", 2, 3),
    Sketcher.Constraint("Symmetric", 1, 3, 2, 3, -1),
    Sketcher.Constraint("Symmetric", 0, 3, 3, 3, -1),
    Sketcher.Constraint("Horizontal", 0, 3, 1, 3),
    Sketcher.Constraint("Diameter", 0, Q("2.9 mm")),
    Sketcher.Constraint("DistanceX", -1, 1, 1, 3, Q("18 mm")),
    Sketcher.Constraint("DistanceX", 0, 3, -1, 1, Q("30.5 mm")),
    Sketcher.Constraint("DistanceY", 1, 3, 2, 3, Q("28.7 mm")),
])
pocket5 = body.newObject("PartDesign::Pocket", "Pocket004")
pocket5.Profile = sketch9
pocket5.Length = 6
pocket5.Reversed = True

# Sketch on XZ plane
sketch10 = body.newObject("Sketcher::SketchObject", "Sketch009")
sketch10.AttachmentSupport = (doc.getObject("XZ_Plane"), [""])
sketch10.MapMode = "FlatFace"
sketch10.AttachmentOffset = App.Placement(Vector(0, 0, -8), App.Rotation())
sketch10.addGeometry([
    Part.LineSegment(Vector(27, -18, 0), Vector(27, 18, 0)),
    Part.LineSegment(Vector(27, 18, 0), Vector(40, 18, 0)),
    Part.LineSegment(Vector(40, 18, 0), Vector(40, -18, 0)),
    Part.LineSegment(Vector(40, -18, 0), Vector(27, -18, 0)),
], False)
sketch10.addConstraint([
    Sketcher.Constraint("Coincident", 0, 2, 1, 1),
    Sketcher.Constraint("Coincident", 1, 2, 2, 1),
    Sketcher.Constraint("Coincident", 2, 2, 3, 1),
    Sketcher.Constraint("Coincident", 3, 2, 0, 1),
    Sketcher.Constraint("Vertical", 0),
    Sketcher.Constraint("Horizontal", 1),
    Sketcher.Constraint("Vertical", 2),
    Sketcher.Constraint("Horizontal", 3),
    Sketcher.Constraint("DistanceX", 1, 1, 1, 2, Q("13 mm")),
    Sketcher.Constraint("DistanceY", 0, 1, 0, 2, Q("36.5 mm")),
    Sketcher.Constraint("DistanceY", -1, 1, 0, 2, Q("18.25 mm")),
    Sketcher.Constraint("DistanceX", -1, 1, 0, 2, Q("26.843146 mm")),
])
pad5 = body.newObject("PartDesign::Pad", "Pad004")
pad5.Profile = sketch10
pad5.Length = 5
pad5.Reversed = True

# Sketch on XZ plane
sketch11 = body.newObject("Sketcher::SketchObject", "Sketch010")
sketch11.AttachmentSupport = (doc.getObject("XZ_Plane"), [""])
sketch11.MapMode = "FlatFace"
sketch11.addGeometry([
    Part.Circle(Vector(-13.4, 13.4, 0), Vector(0, 0, 1), 2),
    Part.Circle(Vector(13.4, 13.4, 0), Vector(0, 0, 1), 2),
    Part.Circle(Vector(13.4, -13.4, 0), Vector(0, 0, 1), 2),
    Part.Circle(Vector(-13.4, -13.4, 0), Vector(0, 0, 1), 2),
], False)
sketch11.addConstraint([
    Sketcher.Constraint("Equal", 0, 1),
    Sketcher.Constraint("Equal", 1, 2),
    Sketcher.Constraint("Equal", 2, 3),
    Sketcher.Constraint("Symmetric", 0, 3, 2, 3, -1, 1),
    Sketcher.Constraint("Symmetric", 1, 3, 3, 3, -1, 1),
    Sketcher.Constraint("Symmetric", 0, 3, 1, 3, -2),
    Sketcher.Constraint("Diameter", 0, Q("4 mm")),
    Sketcher.Constraint("DistanceX", 0, 3, -1, 1, Q("13.435029 mm")),
    Sketcher.Constraint("DistanceY", -1, 1, 0, 3, Q("13.435029 mm")),
])
pocket6 = body.newObject("PartDesign::Pocket", "Pocket005")
pocket6.Profile = sketch11
pocket6.Length = 5
doc.recompute()

fillet = body.newObject("PartDesign::Fillet", "Fillet")
fillet.Base = (pocket6, edges_at(pocket6, [(33.343, 13, -18.25), (33.343, 13, 18.25)]))
fillet.Radius = 1

doc.recompute()
